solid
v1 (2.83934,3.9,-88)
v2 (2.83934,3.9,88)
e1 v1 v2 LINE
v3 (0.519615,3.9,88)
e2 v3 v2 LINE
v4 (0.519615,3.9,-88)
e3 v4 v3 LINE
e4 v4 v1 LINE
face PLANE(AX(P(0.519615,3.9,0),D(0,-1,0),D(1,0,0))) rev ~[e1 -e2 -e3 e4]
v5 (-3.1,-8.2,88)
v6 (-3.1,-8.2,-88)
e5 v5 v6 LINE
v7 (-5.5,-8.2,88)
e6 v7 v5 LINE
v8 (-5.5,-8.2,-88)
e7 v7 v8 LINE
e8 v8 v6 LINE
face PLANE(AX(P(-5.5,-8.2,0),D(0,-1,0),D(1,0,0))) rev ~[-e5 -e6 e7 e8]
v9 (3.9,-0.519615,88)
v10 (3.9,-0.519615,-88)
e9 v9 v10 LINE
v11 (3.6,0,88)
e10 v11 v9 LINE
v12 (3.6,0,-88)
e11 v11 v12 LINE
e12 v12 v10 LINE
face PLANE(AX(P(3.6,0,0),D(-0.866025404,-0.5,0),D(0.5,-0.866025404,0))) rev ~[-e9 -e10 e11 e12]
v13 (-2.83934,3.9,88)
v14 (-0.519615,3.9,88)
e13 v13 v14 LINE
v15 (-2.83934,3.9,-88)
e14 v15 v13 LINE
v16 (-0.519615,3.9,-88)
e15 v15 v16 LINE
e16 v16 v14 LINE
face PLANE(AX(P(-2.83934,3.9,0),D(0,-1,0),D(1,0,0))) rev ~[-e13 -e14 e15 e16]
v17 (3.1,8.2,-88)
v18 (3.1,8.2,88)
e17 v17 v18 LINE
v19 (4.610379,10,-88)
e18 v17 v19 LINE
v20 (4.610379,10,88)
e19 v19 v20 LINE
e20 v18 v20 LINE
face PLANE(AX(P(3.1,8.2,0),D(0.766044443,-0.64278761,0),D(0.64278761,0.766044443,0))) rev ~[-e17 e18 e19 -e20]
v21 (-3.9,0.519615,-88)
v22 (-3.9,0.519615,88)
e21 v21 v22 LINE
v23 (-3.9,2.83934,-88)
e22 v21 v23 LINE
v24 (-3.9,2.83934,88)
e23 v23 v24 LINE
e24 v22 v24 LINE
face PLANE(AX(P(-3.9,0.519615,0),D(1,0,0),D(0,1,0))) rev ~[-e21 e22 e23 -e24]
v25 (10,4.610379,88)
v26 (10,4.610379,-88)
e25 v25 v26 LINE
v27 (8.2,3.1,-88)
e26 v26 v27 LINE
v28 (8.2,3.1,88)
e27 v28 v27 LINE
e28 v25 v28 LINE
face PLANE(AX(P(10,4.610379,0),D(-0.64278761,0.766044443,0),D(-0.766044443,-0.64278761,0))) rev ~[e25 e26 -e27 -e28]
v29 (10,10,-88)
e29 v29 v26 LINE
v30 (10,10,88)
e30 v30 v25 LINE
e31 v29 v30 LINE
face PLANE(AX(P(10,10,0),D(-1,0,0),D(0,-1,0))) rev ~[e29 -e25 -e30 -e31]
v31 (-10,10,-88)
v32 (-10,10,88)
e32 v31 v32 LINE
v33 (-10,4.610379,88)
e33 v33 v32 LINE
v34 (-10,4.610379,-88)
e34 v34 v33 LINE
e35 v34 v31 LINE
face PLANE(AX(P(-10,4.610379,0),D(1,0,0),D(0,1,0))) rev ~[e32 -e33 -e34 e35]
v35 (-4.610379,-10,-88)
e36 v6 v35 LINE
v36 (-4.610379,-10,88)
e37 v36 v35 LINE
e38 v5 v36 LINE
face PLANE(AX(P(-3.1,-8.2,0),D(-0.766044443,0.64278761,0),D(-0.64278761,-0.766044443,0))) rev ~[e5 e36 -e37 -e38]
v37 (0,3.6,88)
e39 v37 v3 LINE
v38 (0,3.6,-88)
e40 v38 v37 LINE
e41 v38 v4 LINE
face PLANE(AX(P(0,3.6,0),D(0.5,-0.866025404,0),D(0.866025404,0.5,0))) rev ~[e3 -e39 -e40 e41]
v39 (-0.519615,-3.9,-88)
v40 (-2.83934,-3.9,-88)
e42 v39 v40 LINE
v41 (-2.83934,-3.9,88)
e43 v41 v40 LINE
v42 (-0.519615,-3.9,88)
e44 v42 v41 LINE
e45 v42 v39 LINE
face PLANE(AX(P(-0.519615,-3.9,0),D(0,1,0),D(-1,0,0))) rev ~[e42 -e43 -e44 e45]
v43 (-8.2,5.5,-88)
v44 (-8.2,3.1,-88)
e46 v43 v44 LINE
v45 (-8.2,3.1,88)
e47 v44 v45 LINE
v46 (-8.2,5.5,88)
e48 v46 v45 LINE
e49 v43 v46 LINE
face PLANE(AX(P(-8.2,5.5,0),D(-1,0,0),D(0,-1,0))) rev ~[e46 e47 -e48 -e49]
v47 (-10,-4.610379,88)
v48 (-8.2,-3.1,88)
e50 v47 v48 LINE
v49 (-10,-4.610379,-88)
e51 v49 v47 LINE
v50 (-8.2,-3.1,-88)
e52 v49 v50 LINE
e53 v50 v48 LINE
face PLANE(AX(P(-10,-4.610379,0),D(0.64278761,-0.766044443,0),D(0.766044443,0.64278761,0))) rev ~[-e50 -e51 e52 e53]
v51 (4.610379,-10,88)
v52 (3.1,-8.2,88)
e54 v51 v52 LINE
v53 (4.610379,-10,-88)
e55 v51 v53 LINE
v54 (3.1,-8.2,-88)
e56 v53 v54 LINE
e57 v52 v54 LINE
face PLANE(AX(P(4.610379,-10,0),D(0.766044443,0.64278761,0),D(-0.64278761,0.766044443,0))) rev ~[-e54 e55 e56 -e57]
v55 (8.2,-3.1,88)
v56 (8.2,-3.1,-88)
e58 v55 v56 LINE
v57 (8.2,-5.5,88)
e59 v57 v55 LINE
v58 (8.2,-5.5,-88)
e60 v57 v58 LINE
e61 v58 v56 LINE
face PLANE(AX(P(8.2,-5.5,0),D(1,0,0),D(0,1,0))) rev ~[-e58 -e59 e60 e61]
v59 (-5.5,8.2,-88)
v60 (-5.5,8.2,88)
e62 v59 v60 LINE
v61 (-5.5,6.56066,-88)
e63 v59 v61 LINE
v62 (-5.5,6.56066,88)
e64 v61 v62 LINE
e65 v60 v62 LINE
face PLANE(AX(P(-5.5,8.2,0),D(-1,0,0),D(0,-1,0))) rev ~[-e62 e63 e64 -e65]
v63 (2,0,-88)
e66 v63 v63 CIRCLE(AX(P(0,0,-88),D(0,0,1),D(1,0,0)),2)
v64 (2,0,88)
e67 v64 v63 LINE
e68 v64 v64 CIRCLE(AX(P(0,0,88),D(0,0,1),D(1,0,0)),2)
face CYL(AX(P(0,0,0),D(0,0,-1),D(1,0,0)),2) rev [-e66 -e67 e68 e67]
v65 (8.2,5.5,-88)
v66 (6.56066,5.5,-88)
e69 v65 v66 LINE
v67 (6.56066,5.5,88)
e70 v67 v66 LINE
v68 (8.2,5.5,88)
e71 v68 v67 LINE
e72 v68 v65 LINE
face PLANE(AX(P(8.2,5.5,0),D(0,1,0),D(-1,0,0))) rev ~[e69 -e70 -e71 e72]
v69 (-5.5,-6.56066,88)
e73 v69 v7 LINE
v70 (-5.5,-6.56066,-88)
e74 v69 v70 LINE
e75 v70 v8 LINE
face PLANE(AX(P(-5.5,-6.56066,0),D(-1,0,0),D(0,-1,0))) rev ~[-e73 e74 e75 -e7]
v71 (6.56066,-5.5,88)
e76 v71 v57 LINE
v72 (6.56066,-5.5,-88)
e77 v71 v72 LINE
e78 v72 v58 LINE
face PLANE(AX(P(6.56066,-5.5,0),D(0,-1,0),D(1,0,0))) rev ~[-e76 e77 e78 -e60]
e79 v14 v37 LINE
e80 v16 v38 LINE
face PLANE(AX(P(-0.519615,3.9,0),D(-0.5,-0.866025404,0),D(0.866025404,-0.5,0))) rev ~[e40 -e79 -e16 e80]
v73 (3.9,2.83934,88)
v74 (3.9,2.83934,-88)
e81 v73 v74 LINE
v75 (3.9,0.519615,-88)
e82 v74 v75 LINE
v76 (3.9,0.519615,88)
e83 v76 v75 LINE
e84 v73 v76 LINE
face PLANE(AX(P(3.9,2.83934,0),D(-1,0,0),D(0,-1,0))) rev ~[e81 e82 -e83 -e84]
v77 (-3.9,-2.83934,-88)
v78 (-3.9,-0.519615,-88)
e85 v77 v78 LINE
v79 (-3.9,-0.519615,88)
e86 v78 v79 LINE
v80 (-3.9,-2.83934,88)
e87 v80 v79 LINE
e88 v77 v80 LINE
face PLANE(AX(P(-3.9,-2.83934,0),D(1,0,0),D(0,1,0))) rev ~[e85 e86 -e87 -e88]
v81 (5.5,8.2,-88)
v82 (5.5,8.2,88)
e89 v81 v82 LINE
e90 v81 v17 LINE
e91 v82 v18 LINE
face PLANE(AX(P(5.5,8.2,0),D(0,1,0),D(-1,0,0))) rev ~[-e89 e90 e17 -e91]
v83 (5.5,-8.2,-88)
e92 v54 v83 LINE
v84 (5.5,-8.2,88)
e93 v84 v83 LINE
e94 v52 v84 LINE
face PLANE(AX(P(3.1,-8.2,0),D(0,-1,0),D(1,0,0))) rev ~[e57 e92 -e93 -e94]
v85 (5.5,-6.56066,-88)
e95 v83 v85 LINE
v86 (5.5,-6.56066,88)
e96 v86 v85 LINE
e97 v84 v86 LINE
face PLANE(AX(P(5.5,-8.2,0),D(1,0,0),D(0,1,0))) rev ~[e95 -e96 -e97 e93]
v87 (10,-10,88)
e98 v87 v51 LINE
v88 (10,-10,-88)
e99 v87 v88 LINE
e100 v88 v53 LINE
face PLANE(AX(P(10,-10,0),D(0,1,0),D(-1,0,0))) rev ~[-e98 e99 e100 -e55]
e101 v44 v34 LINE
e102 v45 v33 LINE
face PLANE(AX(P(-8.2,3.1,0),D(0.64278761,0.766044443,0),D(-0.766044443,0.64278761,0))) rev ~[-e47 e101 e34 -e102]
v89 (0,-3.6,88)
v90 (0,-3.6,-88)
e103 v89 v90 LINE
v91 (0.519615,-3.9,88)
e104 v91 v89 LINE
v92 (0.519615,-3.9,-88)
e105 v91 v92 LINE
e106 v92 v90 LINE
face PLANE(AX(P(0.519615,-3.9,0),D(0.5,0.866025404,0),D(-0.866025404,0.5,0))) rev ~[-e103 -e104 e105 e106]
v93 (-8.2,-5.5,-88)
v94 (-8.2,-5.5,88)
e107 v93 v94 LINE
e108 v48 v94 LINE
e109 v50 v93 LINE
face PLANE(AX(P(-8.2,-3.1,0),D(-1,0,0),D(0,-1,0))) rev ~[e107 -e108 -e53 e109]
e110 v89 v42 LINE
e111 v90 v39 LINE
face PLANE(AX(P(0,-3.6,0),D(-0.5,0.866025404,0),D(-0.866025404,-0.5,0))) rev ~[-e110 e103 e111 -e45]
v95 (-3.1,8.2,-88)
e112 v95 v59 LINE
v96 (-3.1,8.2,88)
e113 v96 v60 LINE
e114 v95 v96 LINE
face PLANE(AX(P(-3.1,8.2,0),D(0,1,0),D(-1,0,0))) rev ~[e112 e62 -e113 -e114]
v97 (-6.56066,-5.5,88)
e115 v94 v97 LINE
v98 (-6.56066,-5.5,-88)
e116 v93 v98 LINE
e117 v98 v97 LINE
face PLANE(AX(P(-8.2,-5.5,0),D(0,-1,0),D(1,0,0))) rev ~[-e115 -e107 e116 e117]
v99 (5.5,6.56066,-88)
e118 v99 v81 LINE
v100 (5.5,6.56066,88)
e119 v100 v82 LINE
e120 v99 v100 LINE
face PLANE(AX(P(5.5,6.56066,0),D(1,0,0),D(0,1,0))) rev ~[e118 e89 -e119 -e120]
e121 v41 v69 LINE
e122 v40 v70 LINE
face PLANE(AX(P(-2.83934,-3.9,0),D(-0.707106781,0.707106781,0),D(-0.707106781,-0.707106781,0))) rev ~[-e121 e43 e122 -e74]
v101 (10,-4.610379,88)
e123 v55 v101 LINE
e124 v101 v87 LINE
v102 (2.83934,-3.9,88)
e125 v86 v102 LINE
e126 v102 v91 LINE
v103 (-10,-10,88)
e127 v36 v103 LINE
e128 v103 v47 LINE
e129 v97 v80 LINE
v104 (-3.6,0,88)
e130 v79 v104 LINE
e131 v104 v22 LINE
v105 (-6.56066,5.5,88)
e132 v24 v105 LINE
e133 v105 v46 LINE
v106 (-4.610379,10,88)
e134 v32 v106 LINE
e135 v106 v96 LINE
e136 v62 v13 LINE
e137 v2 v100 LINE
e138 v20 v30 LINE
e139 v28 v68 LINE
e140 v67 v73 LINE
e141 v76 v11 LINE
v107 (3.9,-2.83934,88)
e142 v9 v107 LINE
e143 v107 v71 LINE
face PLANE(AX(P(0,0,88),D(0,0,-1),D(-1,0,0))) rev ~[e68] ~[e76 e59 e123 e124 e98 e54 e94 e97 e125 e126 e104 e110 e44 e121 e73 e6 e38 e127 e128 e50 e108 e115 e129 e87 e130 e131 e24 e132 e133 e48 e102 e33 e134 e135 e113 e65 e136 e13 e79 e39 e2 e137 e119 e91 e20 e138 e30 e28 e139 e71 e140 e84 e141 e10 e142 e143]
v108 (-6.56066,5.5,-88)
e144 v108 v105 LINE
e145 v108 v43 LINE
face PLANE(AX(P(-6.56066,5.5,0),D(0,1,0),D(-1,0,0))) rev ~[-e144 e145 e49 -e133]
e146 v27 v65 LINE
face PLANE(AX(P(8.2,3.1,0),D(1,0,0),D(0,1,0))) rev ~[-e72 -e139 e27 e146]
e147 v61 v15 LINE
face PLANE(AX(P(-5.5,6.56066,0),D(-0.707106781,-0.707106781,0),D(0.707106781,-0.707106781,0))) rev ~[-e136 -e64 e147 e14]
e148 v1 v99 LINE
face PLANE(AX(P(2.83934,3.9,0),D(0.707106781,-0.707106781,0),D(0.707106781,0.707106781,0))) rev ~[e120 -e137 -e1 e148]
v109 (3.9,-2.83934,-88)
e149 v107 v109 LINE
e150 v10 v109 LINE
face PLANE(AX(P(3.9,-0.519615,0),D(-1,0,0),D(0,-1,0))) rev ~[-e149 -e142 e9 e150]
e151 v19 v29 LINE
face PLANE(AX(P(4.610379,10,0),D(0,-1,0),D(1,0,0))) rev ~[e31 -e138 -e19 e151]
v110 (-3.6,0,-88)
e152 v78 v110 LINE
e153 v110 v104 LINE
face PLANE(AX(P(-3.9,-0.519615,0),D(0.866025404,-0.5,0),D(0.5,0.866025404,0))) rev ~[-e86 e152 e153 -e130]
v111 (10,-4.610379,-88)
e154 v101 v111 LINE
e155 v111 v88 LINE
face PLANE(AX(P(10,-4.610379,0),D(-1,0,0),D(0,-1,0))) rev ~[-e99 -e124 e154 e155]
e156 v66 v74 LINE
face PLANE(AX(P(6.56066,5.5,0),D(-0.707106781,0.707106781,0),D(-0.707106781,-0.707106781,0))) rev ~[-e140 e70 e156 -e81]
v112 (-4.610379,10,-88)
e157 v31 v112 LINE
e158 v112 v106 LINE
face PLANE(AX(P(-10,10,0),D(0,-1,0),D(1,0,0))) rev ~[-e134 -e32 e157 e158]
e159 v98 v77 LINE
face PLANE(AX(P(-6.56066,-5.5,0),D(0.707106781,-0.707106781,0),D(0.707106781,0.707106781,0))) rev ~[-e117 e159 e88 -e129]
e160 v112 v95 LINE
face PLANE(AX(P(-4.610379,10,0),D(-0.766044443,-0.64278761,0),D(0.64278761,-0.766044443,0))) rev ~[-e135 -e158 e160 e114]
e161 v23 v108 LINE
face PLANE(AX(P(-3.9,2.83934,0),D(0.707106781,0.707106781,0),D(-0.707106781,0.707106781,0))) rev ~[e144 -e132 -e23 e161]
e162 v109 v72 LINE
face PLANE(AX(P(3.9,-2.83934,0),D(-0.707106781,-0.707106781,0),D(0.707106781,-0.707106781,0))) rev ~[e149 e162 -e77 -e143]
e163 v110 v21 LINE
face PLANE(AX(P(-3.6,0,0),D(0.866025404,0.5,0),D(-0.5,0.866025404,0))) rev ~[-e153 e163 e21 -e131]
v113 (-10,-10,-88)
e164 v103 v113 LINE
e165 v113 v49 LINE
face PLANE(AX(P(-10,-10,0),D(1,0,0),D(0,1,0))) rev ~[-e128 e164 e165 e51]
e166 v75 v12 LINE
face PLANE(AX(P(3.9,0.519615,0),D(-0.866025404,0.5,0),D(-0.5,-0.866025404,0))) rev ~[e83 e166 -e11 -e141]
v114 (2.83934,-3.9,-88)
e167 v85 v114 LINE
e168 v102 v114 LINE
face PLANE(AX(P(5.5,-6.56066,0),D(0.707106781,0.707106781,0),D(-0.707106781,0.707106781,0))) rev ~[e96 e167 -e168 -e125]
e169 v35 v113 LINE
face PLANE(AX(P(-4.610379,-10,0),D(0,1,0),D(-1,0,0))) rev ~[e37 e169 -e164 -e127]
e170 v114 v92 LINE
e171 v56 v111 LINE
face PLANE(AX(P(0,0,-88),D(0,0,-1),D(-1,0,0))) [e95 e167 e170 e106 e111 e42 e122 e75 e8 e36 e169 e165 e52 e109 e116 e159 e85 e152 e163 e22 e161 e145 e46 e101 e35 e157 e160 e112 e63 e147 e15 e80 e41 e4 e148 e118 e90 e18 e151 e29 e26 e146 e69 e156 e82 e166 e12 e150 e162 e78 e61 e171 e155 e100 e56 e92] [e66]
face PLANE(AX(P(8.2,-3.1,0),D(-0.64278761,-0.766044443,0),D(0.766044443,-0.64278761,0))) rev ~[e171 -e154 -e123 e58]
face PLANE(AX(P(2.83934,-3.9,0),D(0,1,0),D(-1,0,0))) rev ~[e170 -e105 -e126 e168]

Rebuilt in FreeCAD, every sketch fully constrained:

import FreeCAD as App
import Part
import Sketcher

V = App.Vector
Q = App.Units.Quantity


def add_polygon(sketch, points):
    """Adds a closed chain of lines whose ends are joined by coincident constraints."""
    first, n = sketch.GeometryCount, len(points)
    for a, b in zip(points, points[1:] + points[:1]):
        sketch.addGeometry(Part.LineSegment(App.Vector(*a, 0), App.Vector(*b, 0)), False)
    for i in range(n):
        sketch.addConstraint(Sketcher.Constraint("Coincident", first + i, 2, first + (i + 1) % n, 1))

doc = App.newDocument("Part")
params = doc.addObject("Spreadsheet::Sheet", "Params")
for row, (alias, value) in enumerate([
    ("sketch1_diameter", "4 mm"),
    ("sketch1_width", "2.4 mm"),
    ("sketch1_length", "0.6 mm"),
    ("pad1_length", "176 mm"),
], start=1):
    params.set(f"A{row}", alias)
    params.set(f"B{row}", "=" + value)
    params.setAlias(f"B{row}", alias)

body = doc.addObject("PartDesign::Body", "Body")

sketch1 = body.newObject("Sketcher::SketchObject", "Sketch")
sketch1.AttachmentSupport = (doc.getObject("XY_Plane"), [""])
sketch1.MapMode = "FlatFace"
add_polygon(sketch1, [(10, 4.610379), (10, 10), (4.610379, 10), (3.1, 8.2), (5.5, 8.2), (5.5, 6.56066), (2.83934, 3.9), (0.519615, 3.9), (0, 3.6), (-0.519615, 3.9), (-2.83934, 3.9), (-5.5, 6.56066), (-5.5, 8.2), (-3.1, 8.2), (-4.610379, 10), (-10, 10), (-10, 4.610379), (-8.2, 3.1), (-8.2, 5.5), (-6.56066, 5.5), (-3.9, 2.83934), (-3.9, 0.519615), (-3.6, 0), (-3.9, -0.519615), (-3.9, -2.83934), (-6.56066, -5.5), (-8.2, -5.5), (-8.2, -3.1), (-10, -4.610379), (-10, -10), (-4.610379, -10), (-3.1, -8.2), (-5.5, -8.2), (-5.5, -6.56066), (-2.83934, -3.9), (-0.519615, -3.9), (0, -3.6), (0.519615, -3.9), (2.83934, -3.9), (5.5, -6.56066), (5.5, -8.2), (3.1, -8.2), (4.610379, -10), (10, -10), (10, -4.610379), (8.2, -3.1), (8.2, -5.5), (6.56066, -5.5), (3.9, -2.83934), (3.9, -0.519615), (3.6, 0), (3.9, 0.519615), (3.9, 2.83934), (6.56066, 5.5), (8.2, 5.5), (8.2, 3.1)])
sketch1.addGeometry(Part.Circle(V(0, 0, 0), V(0, 0, 1), 2), False)
sketch1.addConstraint(Sketcher.Constraint("Vertical", 0))
sketch1.addConstraint(Sketcher.Constraint("Horizontal", 1))
sketch1.addConstraint(Sketcher.Constraint("Horizontal", 3))
sketch1.addConstraint(Sketcher.Constraint("Vertical", 4))
sketch1.addConstraint(Sketcher.Constraint("Horizontal", 6))
sketch1.addConstraint(Sketcher.Constraint("Horizontal", 9))
sketch1.addConstraint(Sketcher.Constraint("Vertical", 11))
sketch1.addConstraint(Sketcher.Constraint("Horizontal", 12))
sketch1.addConstraint(Sketcher.Constraint("Horizontal", 14))
sketch1.addConstraint(Sketcher.Constraint("Vertical", 15))
sketch1.addConstraint(Sketcher.Constraint("Vertical", 17))
sketch1.addConstraint(Sketcher.Constraint("Horizontal", 18))
sketch1.addConstraint(Sketcher.Constraint("Vertical", 20))
sketch1.addConstraint(Sketcher.Constraint("Vertical", 23))
sketch1.addConstraint(Sketcher.Constraint("Horizontal", 25))
sketch1.addConstraint(Sketcher.Constraint("Vertical", 26))
sketch1.addConstraint(Sketcher.Constraint("Vertical", 28))
sketch1.addConstraint(Sketcher.Constraint("Horizontal", 29))
sketch1.addConstraint(Sketcher.Constraint("Horizontal", 31))
sketch1.addConstraint(Sketcher.Constraint("Vertical", 32))
sketch1.addConstraint(Sketcher.Constraint("Horizontal", 34))
sketch1.addConstraint(Sketcher.Constraint("Horizontal", 37))
sketch1.addConstraint(Sketcher.Constraint("Vertical", 39))
sketch1.addConstraint(Sketcher.Constraint("Horizontal", 40))
sketch1.addConstraint(Sketcher.Constraint("Horizontal", 42))
sketch1.addConstraint(Sketcher.Constraint("Vertical", 43))
sketch1.addConstraint(Sketcher.Constraint("Vertical", 45))
sketch1.addConstraint(Sketcher.Constraint("Horizontal", 46))
sketch1.addConstraint(Sketcher.Constraint("Vertical", 48))
sketch1.addConstraint(Sketcher.Constraint("Vertical", 51))
sketch1.addConstraint(Sketcher.Constraint("Horizontal", 53))
sketch1.addConstraint(Sketcher.Constraint("Vertical", 54))
sketch1.addConstraint(Sketcher.Constraint("Coincident", 56, 3, -1, 1))
sketch1.addConstraint(Sketcher.Constraint("Symmetric", 0, 2, 28, 2, -1, 1))
sketch1.addConstraint(Sketcher.Constraint("Symmetric", 2, 2, 30, 2, -1, 1))
sketch1.addConstraint(Sketcher.Constraint("Symmetric", 4, 2, 32, 2, -1, 1))
sketch1.addConstraint(Sketcher.Constraint("Symmetric", 5, 2, 33, 2, -1, 1))
sketch1.addConstraint(Sketcher.Constraint("Symmetric", 7, 2, 35, 2, -1, 1))
sketch1.addConstraint(Sketcher.Constraint("Symmetric", 8, 2, 36, 2, -1, 1))
sketch1.addConstraint(Sketcher.Constraint("Symmetric", 10, 2, 38, 2, -1, 1))
sketch1.addConstraint(Sketcher.Constraint("Symmetric", 12, 2, 40, 2, -1, 1))
sketch1.addConstraint(Sketcher.Constraint("Symmetric", 13, 2, 41, 2, -1, 1))
sketch1.addConstraint(Sketcher.Constraint("Symmetric", 15, 2, 43, 2, -1, 1))
sketch1.addConstraint(Sketcher.Constraint("Symmetric", 16, 2, 44, 2, -1, 1))
sketch1.addConstraint(Sketcher.Constraint("Symmetric", 18, 2, 46, 2, -1, 1))
sketch1.addConstraint(Sketcher.Constraint("Symmetric", 19, 2, 47, 2, -1, 1))
sketch1.addConstraint(Sketcher.Constraint("Symmetric", 21, 2, 49, 2, -1, 1))
sketch1.addConstraint(Sketcher.Constraint("Symmetric", 22, 2, 50, 2, -1, 1))
sketch1.addConstraint(Sketcher.Constraint("Symmetric", 24, 2, 52, 2, -1, 1))
sketch1.addConstraint(Sketcher.Constraint("Symmetric", 26, 2, 54, 2, -1, 1))
sketch1.addConstraint(Sketcher.Constraint("Symmetric", 6, 2, 8, 2, -2))
sketch1.addConstraint(Sketcher.Constraint("Symmetric", 4, 2, 10, 2, -2))
sketch1.addConstraint(Sketcher.Constraint("Symmetric", 2, 2, 12, 2, -2))
sketch1.addConstraint(Sketcher.Constraint("Symmetric", 1, 2, 13, 2, -2))
sketch1.addConstraint(Sketcher.Constraint("Symmetric", 27, 2, 43, 2, -2))
sketch1.addConstraint(Sketcher.Constraint("Symmetric", 26, 2, 44, 2, -2))
sketch1.addConstraint(Sketcher.Constraint("Symmetric", 24, 2, 46, 2, -2))
sketch1.addConstraint(Sketcher.Constraint("Symmetric", 23, 2, 47, 2, -2))
sketch1.addConstraint(Sketcher.Constraint("PointOnObject", 7, 2, -2))
sketch1.addConstraint(Sketcher.Constraint("PointOnObject", 21, 2, -1))
sketch1.addConstraint(Sketcher.Constraint("Perpendicular", 5, 10))
sketch1.addConstraint(Sketcher.Constraint("Perpendicular", 2, 16))
sketch1.addConstraint(Sketcher.Constraint("Parallel", 10, 19))
sketch1.addConstraint(Sketcher.Constraint("Perpendicular", 7, 21))
sketch1.addConstraint(Sketcher.Constraint("Perpendicular", 8, 22))
sketch1.addConstraint(Sketcher.Constraint("Perpendicular", 19, 24))
sketch1.addConstraint(Sketcher.Constraint("Perpendicular", 16, 30))
sketch1.addConstraint(Sketcher.Constraint("Perpendicular", 21, 35))
sketch1.addConstraint(Sketcher.Constraint("Perpendicular", 33, 38))
sketch1.addConstraint(Sketcher.Constraint("Perpendicular", 35, 49))
sketch1.addConstraint(Sketcher.Constraint("Perpendicular", 47, 52))
sketch1.addConstraint(Sketcher.Constraint("Perpendicular", 41, 55))
sketch1.addConstraint(Sketcher.Constraint("Equal", 42, 0))
sketch1.addConstraint(Sketcher.Constraint("Equal", 53, 4))
sketch1.addConstraint(Sketcher.Constraint("Equal", 40, 17))
sketch1.addConstraint(Sketcher.Constraint("Equal", 37, 20))
sketch1.addConstraint(Sketcher.Constraint("Equal", 13, 16))
sketch1.addConstraint(Sketcher.Constraint("Equal", 10, 19))
sketch1.addConstraint(Sketcher.Constraint("Equal", 8, 21))
sketch1.addConstraint(Sketcher.Constraint("Diameter", 56, 4.0))
sketch1.addConstraint(Sketcher.Constraint("Angle", 2, Q("-130 deg")))
sketch1.addConstraint(Sketcher.Constraint("Angle", 7, Q("-150 deg")))
sketch1.addConstraint(Sketcher.Constraint("DistanceX", 3, 1, 3, 2, 2.4))
sketch1.addConstraint(Sketcher.Constraint("DistanceX", -1, 1, 0, 2, 10.0))
sketch1.addConstraint(Sketcher.Constraint("Distance", 7, 0.6))
sketch1.addConstraint(Sketcher.Constraint("DistanceX", -1, 1, 2, 2, 3.1))
sketch1.addConstraint(Sketcher.Constraint("DistanceY", -1, 1, 2, 2, 8.2))
sketch1.addConstraint(Sketcher.Constraint("DistanceY", -1, 1, 5, 2, 3.9))
sketch1.addConstraint(Sketcher.Constraint("DistanceX", 18, 1, 18, 2, 1.63934))
sketch1.setExpression("Constraints[135]", "Params.sketch1_diameter")
sketch1.setExpression("Constraints[138]", "Params.sketch1_width")
sketch1.setExpression("Constraints[140]", "Params.sketch1_length")
pad1 = body.newObject("PartDesign::Pad", "Pad")
pad1.Profile = sketch1
pad1.setExpression("Length", "Params.pad1_length")
pad1.Midplane = True

doc.recompute()
